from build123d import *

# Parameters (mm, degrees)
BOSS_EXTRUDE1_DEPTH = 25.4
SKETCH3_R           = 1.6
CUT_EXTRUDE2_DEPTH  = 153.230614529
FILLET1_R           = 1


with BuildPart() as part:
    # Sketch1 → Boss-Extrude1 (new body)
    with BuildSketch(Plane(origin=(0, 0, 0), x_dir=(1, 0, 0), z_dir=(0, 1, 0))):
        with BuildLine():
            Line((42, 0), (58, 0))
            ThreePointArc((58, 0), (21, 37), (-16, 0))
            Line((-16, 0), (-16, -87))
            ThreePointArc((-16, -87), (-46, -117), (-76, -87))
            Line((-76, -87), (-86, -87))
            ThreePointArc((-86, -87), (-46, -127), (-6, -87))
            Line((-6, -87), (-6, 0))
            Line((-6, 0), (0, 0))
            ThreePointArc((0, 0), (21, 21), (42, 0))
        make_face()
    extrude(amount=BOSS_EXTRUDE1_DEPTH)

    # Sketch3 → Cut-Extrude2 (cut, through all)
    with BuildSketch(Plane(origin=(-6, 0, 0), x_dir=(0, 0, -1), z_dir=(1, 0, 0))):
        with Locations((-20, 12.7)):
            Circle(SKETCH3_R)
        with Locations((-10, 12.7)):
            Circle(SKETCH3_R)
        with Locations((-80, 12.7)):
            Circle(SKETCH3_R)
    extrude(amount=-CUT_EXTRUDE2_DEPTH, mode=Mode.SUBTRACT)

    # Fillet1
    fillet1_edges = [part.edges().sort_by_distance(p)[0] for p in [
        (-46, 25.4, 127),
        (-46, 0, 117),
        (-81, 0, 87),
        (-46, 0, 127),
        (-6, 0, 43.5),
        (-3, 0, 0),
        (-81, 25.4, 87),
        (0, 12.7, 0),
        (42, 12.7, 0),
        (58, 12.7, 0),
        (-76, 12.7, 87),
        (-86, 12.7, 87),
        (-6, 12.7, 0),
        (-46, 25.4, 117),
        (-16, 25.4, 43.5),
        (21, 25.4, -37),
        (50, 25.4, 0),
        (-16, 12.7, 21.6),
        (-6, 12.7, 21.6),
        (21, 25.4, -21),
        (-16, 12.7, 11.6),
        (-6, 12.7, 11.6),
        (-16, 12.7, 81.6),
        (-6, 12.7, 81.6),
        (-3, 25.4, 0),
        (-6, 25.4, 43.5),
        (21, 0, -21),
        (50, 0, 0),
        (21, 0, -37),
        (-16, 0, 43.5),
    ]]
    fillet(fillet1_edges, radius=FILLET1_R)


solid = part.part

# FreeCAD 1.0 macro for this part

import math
import FreeCAD as App
import Part
import Sketcher

V = App.Vector

doc = App.newDocument("Part")
body = doc.addObject("PartDesign::Body", "Body")

sketch1 = body.newObject("Sketcher::SketchObject", "Sketch")
sketch1.AttachmentSupport = (doc.getObject("XZ_Plane"), [""])
sketch1.MapMode = "FlatFace"
sketch1.addGeometry([
    Part.LineSegment(V(42, 0, 0), V(58, 0, 0)),
    Part.ArcOfCircle(Part.Circle(V(21, 0, 0), V(0, 0, 1), 37), math.radians(180), math.radians(360)),
    Part.LineSegment(V(-16, 0, 0), V(-16, 87, 0)),
    Part.ArcOfCircle(Part.Circle(V(-46, 87, 0), V(0, 0, 1), 30), math.radians(0), math.radians(180)),
    Part.LineSegment(V(-76, 87, 0), V(-86, 87, 0)),
    Part.ArcOfCircle(Part.Circle(V(-46, 87, 0), V(0, 0, 1), 40), math.radians(0), math.radians(180)),
    Part.LineSegment(V(-6, 87, 0), V(-6, 0, 0)),
    Part.LineSegment(V(-6, 0, 0), V(0, 0, 0)),
    Part.ArcOfCircle(Part.Circle(V(21, 0, 0), V(0, 0, 1), 21), math.radians(180), math.radians(360)),
], False)
sketch1.addConstraint([
    Sketcher.Constraint("Coincident", 0, 2, 1, 2),
    Sketcher.Constraint("Tangent", 1, 1, 2, 1),
    Sketcher.Constraint("Tangent", 2, 2, 3, 1),
    Sketcher.Constraint("Coincident", 3, 2, 4, 1),
    Sketcher.Constraint("Coincident", 4, 2, 5, 2),
    Sketcher.Constraint("Tangent", 5, 1, 6, 1),
    Sketcher.Constraint("Coincident", 6, 2, 7, 1),
    Sketcher.Constraint("Coincident", 7, 2, 8, 1),
    Sketcher.Constraint("Coincident", 8, 2, 0, 1),
    Sketcher.Constraint("Horizontal", 0),
    Sketcher.Constraint("Vertical", 2),
    Sketcher.Constraint("Horizontal", 4),
    Sketcher.Constraint("Vertical", 6),
    Sketcher.Constraint("Horizontal", 7),
    Sketcher.Constraint("Coincident", 7, 2, -1, 1),
    Sketcher.Constraint("Coincident", 5, 3, 3, 3),
    Sketcher.Constraint("Coincident", 8, 3, 1, 3),
    Sketcher.Constraint("PointOnObject", 1, 3, -1),
    Sketcher.Constraint("PointOnObject", 0, 2, -1),
    Sketcher.Constraint("Horizontal", 2, 2, 3, 2),
    Sketcher.Constraint("Radius", 1, 37.0),
    Sketcher.Constraint("Radius", 3, 30.0),
    Sketcher.Constraint("Radius", 5, 40.0),
    Sketcher.Constraint("Radius", 8, 21.0),
    Sketcher.Constraint("DistanceY", 2, 1, 2, 2, 87.0),
])
pad1 = body.newObject("PartDesign::Pad", "Pad")
pad1.Profile = sketch1
pad1.Length = 25.4
pad1.Reversed = True

sketch2 = body.newObject("Sketcher::SketchObject", "Sketch001")
sketch2.AttachmentSupport = (doc.getObject("YZ_Plane"), [""])
sketch2.MapMode = "FlatFace"
sketch2.AttachmentOffset = App.Placement(V(0, 0, -6), App.Rotation())
sketch2.addGeometry([
    Part.Circle(V(12.7, 20, 0), V(0, 0, 1), 1.6),
    Part.Circle(V(12.7, 10, 0), V(0, 0, 1), 1.6),
    Part.Circle(V(12.7, 80, 0), V(0, 0, 1), 1.6),
], False)
sketch2.addConstraint([
    Sketcher.Constraint("Equal", 0, 1),
    Sketcher.Constraint("Equal", 1, 2),
    Sketcher.Constraint("Vertical", 0, 3, 1, 3),
    Sketcher.Constraint("Vertical", 1, 3, 2, 3),
    Sketcher.Constraint("Diameter", 0, 3.2),
    Sketcher.Constraint("DistanceY", -1, 1, 0, 3, 20.0),
    Sketcher.Constraint("DistanceY", -1, 1, 1, 3, 10.0),
    Sketcher.Constraint("DistanceY", -1, 1, 2, 3, 80.0),
    Sketcher.Constraint("DistanceX", -1, 1, 0, 3, 12.7),
])
pocket1 = body.newObject("PartDesign::Pocket", "Pocket")
pocket1.Profile = sketch2
pocket1.Type = "ThroughAll"
doc.recompute()

fillet = body.newObject("PartDesign::Fillet", "Fillet")
fillet.Base = (pocket1, ["Edge1"])
fillet.UseAllEdges = True
fillet.Radius = 1

doc.recompute()
